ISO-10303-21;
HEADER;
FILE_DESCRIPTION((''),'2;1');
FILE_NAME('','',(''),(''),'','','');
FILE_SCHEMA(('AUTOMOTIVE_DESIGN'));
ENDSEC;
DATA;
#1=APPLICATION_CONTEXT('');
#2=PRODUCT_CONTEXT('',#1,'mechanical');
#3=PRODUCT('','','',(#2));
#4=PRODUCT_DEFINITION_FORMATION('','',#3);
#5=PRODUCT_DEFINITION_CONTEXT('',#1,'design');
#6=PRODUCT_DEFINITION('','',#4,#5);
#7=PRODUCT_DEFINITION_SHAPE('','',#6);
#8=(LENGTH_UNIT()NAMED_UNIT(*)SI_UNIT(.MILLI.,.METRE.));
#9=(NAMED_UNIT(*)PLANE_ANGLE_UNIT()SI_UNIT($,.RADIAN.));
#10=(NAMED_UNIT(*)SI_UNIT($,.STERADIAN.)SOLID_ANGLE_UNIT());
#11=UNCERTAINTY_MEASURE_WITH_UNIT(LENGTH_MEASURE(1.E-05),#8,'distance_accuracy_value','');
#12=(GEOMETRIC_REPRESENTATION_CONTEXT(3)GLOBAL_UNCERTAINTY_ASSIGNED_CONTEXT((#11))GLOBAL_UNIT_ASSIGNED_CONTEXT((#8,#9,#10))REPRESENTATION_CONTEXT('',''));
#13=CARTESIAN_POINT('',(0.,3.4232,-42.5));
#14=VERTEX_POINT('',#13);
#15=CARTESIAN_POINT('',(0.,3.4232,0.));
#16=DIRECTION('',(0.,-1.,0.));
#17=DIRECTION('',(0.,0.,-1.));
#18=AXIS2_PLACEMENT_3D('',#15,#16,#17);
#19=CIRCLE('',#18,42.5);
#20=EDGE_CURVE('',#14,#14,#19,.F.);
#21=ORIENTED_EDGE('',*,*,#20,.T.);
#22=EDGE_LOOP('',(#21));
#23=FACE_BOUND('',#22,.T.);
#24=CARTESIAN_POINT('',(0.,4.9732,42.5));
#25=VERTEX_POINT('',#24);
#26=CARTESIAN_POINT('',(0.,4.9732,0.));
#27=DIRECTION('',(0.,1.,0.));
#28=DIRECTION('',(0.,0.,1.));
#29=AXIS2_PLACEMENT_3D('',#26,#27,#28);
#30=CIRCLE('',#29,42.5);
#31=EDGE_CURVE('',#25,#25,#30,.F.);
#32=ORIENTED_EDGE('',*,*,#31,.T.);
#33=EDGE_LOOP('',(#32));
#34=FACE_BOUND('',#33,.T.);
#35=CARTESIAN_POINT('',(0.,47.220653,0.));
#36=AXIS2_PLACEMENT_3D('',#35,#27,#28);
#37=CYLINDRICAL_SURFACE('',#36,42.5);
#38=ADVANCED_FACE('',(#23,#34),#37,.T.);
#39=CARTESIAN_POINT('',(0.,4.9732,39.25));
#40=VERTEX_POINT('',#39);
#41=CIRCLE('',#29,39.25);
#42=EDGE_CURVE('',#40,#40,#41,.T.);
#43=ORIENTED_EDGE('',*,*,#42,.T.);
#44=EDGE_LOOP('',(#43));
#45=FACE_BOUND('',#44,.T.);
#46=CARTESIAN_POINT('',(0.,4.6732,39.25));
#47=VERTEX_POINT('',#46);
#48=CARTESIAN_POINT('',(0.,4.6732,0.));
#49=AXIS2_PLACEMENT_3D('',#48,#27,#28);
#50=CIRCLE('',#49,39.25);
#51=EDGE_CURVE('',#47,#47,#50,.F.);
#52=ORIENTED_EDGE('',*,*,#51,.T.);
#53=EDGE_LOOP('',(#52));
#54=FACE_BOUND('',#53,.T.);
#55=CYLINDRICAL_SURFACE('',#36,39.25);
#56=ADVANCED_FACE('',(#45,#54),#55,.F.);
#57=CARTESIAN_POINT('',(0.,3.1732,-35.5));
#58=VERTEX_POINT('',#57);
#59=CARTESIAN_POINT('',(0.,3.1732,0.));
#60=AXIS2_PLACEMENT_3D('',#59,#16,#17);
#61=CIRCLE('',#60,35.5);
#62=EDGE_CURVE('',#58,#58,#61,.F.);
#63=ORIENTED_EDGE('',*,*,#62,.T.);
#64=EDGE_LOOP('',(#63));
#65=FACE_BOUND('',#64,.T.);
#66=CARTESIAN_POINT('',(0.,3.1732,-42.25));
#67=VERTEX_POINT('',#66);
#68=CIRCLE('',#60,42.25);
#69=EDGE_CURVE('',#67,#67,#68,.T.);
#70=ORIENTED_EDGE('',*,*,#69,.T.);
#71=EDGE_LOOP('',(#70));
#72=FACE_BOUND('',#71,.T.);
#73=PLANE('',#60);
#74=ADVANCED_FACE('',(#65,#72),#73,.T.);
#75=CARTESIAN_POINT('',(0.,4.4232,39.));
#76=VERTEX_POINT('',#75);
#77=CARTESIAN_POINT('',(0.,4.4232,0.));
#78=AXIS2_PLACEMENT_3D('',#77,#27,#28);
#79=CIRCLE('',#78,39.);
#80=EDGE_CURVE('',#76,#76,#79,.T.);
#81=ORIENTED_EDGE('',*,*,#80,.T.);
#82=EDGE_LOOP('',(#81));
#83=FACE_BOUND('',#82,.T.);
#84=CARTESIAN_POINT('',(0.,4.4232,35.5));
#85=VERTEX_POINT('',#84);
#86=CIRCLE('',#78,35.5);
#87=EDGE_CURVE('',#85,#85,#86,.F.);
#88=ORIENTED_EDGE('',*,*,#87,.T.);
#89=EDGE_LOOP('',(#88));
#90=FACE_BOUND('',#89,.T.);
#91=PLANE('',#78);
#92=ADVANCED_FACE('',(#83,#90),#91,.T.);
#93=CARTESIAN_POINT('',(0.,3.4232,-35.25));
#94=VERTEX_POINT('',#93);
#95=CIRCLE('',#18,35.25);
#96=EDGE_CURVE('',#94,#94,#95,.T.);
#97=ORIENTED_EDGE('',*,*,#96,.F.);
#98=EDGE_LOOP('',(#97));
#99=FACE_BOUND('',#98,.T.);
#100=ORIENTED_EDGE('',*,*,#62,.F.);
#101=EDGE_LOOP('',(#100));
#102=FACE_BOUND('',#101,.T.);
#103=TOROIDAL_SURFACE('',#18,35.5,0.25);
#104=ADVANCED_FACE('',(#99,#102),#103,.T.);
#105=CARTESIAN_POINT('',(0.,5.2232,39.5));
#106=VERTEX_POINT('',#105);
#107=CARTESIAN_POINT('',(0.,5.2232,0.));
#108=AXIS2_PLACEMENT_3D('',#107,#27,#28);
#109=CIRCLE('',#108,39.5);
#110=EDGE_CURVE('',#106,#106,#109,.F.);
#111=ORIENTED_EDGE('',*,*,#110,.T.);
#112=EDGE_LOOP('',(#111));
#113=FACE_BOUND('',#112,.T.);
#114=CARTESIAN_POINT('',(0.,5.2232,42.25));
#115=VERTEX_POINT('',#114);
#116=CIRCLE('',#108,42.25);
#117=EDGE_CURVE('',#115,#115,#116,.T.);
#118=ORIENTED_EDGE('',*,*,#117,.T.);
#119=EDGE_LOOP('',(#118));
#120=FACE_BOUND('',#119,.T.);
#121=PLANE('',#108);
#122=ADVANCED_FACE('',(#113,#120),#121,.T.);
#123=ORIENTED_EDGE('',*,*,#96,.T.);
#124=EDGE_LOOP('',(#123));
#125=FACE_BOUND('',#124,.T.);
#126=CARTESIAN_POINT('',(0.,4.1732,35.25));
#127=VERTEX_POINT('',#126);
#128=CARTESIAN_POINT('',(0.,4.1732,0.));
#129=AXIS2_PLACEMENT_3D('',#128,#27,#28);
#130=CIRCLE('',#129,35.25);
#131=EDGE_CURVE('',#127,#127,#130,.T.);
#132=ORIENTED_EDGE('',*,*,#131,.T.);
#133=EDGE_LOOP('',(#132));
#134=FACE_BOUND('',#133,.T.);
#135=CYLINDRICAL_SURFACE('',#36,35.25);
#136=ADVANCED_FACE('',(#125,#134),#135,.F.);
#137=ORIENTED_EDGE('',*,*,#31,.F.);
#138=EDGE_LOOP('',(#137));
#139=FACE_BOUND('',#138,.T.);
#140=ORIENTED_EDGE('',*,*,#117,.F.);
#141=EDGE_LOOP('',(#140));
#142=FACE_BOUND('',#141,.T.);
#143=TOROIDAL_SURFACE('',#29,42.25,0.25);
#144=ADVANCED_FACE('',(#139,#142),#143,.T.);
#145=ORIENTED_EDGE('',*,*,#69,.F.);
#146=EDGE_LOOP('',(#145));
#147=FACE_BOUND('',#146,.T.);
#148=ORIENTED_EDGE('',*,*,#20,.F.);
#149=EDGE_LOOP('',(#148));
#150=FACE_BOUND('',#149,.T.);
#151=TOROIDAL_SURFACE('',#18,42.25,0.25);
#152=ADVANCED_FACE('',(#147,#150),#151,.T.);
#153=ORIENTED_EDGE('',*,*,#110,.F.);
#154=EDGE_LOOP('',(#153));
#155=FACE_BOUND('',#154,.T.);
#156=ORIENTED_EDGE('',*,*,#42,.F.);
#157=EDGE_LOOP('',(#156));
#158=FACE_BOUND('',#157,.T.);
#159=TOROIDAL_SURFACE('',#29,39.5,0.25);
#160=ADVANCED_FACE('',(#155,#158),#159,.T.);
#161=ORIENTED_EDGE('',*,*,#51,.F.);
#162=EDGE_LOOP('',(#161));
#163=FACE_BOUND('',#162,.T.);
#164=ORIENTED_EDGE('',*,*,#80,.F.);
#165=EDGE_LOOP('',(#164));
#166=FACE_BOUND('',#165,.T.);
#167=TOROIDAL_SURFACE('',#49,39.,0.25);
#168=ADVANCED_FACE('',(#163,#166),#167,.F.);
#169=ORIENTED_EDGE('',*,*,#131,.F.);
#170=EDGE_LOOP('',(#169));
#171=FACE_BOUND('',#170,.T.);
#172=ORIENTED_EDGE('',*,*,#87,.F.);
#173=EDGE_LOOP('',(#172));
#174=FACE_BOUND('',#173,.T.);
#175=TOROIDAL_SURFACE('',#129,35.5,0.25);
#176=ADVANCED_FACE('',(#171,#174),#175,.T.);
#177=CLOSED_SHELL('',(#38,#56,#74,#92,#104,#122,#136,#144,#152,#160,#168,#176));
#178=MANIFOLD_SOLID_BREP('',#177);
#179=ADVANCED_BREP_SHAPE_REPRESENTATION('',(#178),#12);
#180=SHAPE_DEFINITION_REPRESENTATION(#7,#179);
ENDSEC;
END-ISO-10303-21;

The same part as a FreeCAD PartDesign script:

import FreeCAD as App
import Part
import Sketcher


def edges_at(feature, points):
    """Names of the edges that pass closest to the given points."""
    edges = feature.Shape.Edges
    near = lambda p: min(range(len(edges)), key=lambda i: edges[i].distToShape(Part.Vertex(*p))[0])
    return sorted({f"Edge{near(p) + 1}" for p in points})

doc = App.newDocument("Part")
body = doc.addObject("PartDesign::Body", "Body")

# Sketch on XY plane
sketch1 = doc.addObject("Sketcher::SketchObject", "Sketch")
body.addObject(sketch1)
sketch1.AttachmentSupport = (doc.XY_Plane, [""])
sketch1.MapMode = "FlatFace"
sketch1.addGeometry(Part.LineSegment(App.Vector(35.25, 3.1732, 0), App.Vector(42.5, 3.1732, 0)), False)
sketch1.addGeometry(Part.LineSegment(App.Vector(42.5, 3.1732, 0), App.Vector(42.5, 5.2232, 0)), False)
sketch1.addGeometry(Part.LineSegment(App.Vector(42.5, 5.2232, 0), App.Vector(39.25, 5.2232, 0)), False)
sketch1.addGeometry(Part.LineSegment(App.Vector(39.25, 5.2232, 0), App.Vector(39.25, 4.4232, 0)), False)
sketch1.addGeometry(Part.LineSegment(App.Vector(39.25, 4.4232, 0), App.Vector(35.25, 4.4232, 0)), False)
sketch1.addGeometry(Part.LineSegment(App.Vector(35.25, 4.4232, 0), App.Vector(35.25, 3.1732, 0)), False)
sketch1.addConstraint(Sketcher.Constraint("Coincident", 0, 2, 1, 1))
sketch1.addConstraint(Sketcher.Constraint("Coincident", 1, 2, 2, 1))
sketch1.addConstraint(Sketcher.Constraint("Coincident", 2, 2, 3, 1))
sketch1.addConstraint(Sketcher.Constraint("Coincident", 3, 2, 4, 1))
sketch1.addConstraint(Sketcher.Constraint("Coincident", 4, 2, 5, 1))
sketch1.addConstraint(Sketcher.Constraint("Coincident", 5, 2, 0, 1))
sketch1.addConstraint(Sketcher.Constraint("Horizontal", 0))
sketch1.addConstraint(Sketcher.Constraint("Vertical", 1))
sketch1.addConstraint(Sketcher.Constraint("Horizontal", 2))
sketch1.addConstraint(Sketcher.Constraint("Vertical", 3))
sketch1.addConstraint(Sketcher.Constraint("Horizontal", 4))
sketch1.addConstraint(Sketcher.Constraint("Vertical", 5))
sketch1.addConstraint(Sketcher.Constraint("DistanceX", 4, 2, 4, 1, 4.0))
sketch1.addConstraint(Sketcher.Constraint("DistanceY", 3, 2, 3, 1, 0.8))
sketch1.addConstraint(Sketcher.Constraint("DistanceX", 0, 1, 0, 2, 7.25))
sketch1.addConstraint(Sketcher.Constraint("DistanceY", 1, 1, 1, 2, 2.05))
sketch1.addConstraint(Sketcher.Constraint("DistanceX", -1, 1, 0, 2, 42.5))
sketch1.addConstraint(Sketcher.Constraint("DistanceY", -1, 1, 0, 2, 3.1732))
revolution = doc.addObject("PartDesign::Revolution", "Revolution")
body.addObject(revolution)
revolution.Profile = sketch1
revolution.ReferenceAxis = (sketch1, ["V_Axis"])
revolution.Angle = 360
doc.recompute()

fillet = doc.addObject("PartDesign::Fillet", "Fillet")
body.addObject(fillet)
fillet.Base = (revolution, edges_at(revolution, [
    (0, 3.173, -35.25),
    (0, 4.423, -35.25),
    (0, 4.423, -39.25),
    (0, 5.223, -39.25),
    (0, 5.223, -42.5),
    (0, 3.173, -42.5),
]))
fillet.Radius = 0.25

doc.recompute()
